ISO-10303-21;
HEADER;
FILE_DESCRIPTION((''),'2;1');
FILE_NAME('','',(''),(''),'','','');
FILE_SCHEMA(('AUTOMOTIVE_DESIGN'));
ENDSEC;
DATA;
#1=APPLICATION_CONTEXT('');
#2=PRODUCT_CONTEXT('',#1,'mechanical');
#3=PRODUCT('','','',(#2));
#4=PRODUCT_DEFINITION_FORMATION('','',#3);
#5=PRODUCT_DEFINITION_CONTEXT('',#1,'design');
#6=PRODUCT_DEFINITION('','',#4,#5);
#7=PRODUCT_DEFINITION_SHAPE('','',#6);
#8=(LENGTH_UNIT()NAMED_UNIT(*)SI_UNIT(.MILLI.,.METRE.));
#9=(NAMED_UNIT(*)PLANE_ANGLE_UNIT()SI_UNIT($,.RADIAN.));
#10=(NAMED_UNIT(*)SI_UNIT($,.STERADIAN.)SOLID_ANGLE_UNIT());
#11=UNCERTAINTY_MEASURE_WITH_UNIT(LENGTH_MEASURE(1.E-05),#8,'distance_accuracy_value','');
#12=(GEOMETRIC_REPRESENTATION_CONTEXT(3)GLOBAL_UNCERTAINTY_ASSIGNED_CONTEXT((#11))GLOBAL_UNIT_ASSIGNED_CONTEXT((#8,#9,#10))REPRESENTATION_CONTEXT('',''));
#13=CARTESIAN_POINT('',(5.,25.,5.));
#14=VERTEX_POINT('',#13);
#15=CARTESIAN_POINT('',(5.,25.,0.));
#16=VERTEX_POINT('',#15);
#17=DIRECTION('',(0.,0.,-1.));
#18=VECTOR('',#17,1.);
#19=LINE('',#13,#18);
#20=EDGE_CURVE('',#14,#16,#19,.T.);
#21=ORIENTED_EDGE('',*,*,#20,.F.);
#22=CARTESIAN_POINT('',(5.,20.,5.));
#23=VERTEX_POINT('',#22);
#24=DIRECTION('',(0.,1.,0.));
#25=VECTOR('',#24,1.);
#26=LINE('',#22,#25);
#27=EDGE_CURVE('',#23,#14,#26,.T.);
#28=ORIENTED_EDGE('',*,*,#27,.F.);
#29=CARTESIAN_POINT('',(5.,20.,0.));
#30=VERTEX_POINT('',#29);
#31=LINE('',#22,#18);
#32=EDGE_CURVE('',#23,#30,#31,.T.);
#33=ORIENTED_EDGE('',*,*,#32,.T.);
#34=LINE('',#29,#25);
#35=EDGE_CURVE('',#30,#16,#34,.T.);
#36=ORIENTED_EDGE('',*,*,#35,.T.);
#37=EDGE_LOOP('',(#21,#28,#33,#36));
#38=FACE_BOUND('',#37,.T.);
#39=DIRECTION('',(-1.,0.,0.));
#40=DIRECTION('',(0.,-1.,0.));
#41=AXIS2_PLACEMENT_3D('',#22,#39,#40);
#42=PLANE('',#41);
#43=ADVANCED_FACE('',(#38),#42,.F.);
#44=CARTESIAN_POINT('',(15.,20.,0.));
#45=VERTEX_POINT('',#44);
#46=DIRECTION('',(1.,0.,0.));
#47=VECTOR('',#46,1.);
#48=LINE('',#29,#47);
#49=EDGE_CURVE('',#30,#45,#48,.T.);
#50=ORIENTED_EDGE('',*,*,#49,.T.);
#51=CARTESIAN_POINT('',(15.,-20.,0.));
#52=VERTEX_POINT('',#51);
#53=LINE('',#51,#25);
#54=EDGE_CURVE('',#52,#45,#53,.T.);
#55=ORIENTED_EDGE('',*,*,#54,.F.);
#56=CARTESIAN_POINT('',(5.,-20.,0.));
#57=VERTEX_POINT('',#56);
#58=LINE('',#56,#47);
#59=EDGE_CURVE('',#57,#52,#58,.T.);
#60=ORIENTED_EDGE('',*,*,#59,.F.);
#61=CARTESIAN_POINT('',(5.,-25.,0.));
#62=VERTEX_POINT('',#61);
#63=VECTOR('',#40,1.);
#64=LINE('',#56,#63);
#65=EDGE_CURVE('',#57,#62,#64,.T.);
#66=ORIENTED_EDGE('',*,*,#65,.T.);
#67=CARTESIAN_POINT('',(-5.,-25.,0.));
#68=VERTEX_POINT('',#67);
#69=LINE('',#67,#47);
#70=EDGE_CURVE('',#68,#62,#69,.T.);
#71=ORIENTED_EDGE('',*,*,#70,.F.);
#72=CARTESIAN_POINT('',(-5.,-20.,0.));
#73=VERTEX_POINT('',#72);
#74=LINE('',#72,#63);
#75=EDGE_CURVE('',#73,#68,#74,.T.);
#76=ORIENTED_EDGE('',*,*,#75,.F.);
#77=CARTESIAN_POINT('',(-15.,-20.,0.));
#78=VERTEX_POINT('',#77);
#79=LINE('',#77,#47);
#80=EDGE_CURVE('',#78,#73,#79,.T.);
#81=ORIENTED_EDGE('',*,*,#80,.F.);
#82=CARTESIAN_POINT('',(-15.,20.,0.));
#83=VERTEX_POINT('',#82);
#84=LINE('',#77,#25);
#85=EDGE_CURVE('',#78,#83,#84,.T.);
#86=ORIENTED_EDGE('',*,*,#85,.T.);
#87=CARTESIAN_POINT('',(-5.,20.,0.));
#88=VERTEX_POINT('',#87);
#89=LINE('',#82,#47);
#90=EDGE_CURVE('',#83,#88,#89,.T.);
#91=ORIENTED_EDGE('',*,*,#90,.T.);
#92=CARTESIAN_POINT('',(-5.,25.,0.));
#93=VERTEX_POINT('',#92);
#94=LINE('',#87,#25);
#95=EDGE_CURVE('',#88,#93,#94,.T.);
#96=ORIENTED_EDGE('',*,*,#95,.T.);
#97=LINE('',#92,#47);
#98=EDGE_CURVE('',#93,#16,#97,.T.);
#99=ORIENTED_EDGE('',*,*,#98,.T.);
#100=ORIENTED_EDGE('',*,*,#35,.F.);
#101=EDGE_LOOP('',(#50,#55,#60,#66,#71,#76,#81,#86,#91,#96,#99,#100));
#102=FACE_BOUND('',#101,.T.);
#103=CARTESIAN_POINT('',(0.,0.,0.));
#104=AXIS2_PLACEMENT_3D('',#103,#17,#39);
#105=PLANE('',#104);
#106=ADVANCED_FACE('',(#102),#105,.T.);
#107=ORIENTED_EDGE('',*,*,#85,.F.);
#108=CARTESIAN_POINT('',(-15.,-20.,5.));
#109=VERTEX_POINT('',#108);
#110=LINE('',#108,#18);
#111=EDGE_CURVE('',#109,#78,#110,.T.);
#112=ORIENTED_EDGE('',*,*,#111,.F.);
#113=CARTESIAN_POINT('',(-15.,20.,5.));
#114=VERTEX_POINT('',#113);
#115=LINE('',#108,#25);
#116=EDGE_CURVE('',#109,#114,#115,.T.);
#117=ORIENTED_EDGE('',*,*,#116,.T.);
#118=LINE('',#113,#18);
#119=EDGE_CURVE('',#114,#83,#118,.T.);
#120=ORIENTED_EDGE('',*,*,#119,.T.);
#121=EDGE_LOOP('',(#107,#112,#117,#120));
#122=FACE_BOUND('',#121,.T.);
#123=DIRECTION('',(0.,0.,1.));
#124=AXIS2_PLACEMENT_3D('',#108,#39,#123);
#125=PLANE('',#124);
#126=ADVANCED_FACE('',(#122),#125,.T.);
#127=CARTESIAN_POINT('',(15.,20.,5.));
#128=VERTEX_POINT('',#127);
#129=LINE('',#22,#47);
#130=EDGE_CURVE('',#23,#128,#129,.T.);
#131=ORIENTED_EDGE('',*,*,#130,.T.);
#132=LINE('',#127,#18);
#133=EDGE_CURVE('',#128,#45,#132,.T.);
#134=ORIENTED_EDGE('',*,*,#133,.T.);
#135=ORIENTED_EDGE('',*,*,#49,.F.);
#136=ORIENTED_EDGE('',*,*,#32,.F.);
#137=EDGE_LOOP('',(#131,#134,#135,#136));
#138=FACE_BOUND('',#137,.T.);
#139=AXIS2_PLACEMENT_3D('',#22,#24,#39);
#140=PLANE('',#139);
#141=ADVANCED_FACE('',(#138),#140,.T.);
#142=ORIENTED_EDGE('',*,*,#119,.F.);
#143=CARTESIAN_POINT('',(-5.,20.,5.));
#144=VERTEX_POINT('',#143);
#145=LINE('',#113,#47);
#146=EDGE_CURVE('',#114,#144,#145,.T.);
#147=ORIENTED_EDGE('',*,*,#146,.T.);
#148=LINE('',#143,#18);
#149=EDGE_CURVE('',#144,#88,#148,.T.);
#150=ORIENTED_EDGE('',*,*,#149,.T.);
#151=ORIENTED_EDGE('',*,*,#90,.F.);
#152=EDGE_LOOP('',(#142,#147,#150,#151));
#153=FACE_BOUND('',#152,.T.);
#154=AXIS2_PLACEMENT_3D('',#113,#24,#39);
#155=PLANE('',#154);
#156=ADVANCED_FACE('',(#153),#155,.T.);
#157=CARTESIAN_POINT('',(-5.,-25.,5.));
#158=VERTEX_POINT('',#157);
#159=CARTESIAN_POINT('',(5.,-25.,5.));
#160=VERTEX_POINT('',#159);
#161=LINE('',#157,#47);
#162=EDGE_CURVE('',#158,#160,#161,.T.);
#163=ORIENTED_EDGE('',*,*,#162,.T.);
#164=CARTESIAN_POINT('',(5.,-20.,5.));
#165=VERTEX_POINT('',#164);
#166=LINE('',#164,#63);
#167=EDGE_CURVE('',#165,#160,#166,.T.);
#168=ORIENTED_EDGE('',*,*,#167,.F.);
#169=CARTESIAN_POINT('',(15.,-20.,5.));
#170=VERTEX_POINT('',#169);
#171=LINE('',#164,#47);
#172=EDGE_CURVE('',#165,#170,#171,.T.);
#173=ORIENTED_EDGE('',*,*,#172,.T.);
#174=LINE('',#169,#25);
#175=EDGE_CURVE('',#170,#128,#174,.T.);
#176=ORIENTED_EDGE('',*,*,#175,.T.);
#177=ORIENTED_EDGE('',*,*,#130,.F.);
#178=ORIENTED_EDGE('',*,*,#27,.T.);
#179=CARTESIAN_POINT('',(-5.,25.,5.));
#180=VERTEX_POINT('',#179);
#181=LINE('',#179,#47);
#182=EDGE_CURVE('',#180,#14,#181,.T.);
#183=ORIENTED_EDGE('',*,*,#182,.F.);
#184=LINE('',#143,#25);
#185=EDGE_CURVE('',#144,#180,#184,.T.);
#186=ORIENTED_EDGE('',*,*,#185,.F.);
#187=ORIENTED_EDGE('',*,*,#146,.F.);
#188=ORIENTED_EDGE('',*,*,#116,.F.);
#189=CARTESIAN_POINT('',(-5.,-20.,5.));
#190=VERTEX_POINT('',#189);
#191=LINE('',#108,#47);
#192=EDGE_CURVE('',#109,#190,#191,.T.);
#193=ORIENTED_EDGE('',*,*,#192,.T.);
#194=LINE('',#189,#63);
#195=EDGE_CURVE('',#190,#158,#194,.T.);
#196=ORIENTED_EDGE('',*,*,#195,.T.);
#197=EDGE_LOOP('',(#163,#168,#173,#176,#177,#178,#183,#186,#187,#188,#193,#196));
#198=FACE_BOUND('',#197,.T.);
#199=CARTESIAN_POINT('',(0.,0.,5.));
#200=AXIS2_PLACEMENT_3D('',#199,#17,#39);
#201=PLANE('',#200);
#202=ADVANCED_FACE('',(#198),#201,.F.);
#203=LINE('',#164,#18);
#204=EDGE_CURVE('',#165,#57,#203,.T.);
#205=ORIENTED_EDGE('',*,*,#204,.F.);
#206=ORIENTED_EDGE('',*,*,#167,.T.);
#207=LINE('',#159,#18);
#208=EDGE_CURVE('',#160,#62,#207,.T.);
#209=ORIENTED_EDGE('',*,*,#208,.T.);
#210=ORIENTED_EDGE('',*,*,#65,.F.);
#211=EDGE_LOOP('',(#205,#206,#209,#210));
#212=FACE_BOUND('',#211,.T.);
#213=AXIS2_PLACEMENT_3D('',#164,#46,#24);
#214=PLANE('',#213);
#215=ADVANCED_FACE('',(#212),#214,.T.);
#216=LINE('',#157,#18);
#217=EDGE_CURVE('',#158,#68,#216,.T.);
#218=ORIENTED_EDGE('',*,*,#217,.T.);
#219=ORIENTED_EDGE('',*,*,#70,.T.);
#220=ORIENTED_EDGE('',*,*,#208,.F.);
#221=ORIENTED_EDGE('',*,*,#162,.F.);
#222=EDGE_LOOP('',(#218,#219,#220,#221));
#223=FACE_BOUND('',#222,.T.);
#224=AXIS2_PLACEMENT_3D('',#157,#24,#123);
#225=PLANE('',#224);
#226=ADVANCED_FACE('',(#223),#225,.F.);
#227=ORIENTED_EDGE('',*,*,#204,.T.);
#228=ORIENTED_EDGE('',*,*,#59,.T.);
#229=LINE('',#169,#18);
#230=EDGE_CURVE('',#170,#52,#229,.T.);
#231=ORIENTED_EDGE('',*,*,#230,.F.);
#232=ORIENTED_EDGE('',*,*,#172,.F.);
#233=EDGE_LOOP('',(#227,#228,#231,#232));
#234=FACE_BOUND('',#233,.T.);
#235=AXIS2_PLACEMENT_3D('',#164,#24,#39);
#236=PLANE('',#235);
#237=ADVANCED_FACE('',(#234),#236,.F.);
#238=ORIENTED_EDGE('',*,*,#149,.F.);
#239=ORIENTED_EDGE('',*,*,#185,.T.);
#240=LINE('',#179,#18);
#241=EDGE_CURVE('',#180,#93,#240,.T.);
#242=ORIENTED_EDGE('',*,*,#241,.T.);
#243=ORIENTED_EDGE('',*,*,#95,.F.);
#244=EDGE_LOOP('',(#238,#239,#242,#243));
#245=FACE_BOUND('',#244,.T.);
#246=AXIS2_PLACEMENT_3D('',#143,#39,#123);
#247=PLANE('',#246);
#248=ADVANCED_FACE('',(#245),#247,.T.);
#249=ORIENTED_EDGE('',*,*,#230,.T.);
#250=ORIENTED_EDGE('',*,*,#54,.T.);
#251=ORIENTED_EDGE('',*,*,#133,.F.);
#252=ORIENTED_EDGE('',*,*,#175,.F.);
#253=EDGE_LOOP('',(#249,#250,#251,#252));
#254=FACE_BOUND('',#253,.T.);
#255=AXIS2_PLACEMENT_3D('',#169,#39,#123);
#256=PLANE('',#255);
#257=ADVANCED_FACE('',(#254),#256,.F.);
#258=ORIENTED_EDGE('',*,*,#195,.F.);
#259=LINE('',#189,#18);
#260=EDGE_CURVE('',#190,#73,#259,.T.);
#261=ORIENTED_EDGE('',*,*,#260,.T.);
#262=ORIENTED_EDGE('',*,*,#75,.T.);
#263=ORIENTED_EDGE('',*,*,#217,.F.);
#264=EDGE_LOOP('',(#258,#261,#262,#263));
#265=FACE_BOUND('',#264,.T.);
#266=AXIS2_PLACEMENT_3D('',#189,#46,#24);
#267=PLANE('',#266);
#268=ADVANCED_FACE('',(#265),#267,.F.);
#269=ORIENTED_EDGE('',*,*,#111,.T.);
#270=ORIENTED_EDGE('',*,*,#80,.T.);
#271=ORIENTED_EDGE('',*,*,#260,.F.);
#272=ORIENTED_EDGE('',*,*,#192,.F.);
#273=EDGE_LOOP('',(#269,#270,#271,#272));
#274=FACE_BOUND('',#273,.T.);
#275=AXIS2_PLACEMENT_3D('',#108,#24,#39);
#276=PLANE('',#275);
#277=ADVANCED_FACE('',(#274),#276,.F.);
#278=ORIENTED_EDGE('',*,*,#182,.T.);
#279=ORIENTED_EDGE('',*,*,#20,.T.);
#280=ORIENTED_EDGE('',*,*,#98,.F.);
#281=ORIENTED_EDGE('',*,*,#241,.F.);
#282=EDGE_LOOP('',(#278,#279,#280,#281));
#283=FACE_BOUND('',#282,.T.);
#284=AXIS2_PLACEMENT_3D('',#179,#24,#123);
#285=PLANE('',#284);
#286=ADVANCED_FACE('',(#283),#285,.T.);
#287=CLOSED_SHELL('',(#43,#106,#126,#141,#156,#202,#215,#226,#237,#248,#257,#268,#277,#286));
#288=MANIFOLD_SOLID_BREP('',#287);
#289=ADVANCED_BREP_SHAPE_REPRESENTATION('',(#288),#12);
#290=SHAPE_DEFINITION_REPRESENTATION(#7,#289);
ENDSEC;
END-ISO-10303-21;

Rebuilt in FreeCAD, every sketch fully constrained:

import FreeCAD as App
import Part
import Sketcher
Q = App.Units.Quantity


def add_polygon(sketch, points):
    """Adds a closed chain of lines whose ends are joined by coincident constraints."""
    first, n = sketch.GeometryCount, len(points)
    for a, b in zip(points, points[1:] + points[:1]):
        sketch.addGeometry(Part.LineSegment(App.Vector(*a, 0), App.Vector(*b, 0)), False)
    for i in range(n):
        sketch.addConstraint(Sketcher.Constraint("Coincident", first + i, 2, first + (i + 1) % n, 1))

doc = App.newDocument("Part")
params = doc.addObject("Spreadsheet::Sheet", "Params")
for row, (alias, value) in enumerate([
    ("sketch1_width", "10 mm"),
    ("sketch1_height", "5 mm"),
    ("sketch1_height2", "40 mm"),
    ("pad1_length", "5 mm"),
], start=1):
    params.set(f"A{row}", alias)
    params.set(f"B{row}", "=" + value)
    params.setAlias(f"B{row}", alias)

body = doc.addObject("PartDesign::Body", "Body")

# Sketch on XY plane
sketch1 = doc.addObject("Sketcher::SketchObject", "Sketch")
body.addObject(sketch1)
sketch1.AttachmentSupport = (doc.XY_Plane, [""])
sketch1.MapMode = "FlatFace"
add_polygon(sketch1, [(15, 20), (5, 20), (5, 25), (-5, 25), (-5, 20), (-15, 20), (-15, -20), (-5, -20), (-5, -25), (5, -25), (5, -20), (15, -20)])  # lines 0-11
sketch1.addConstraint([
    Sketcher.Constraint("Horizontal", 0),
    Sketcher.Constraint("Vertical", 1),
    Sketcher.Constraint("Horizontal", 2),
    Sketcher.Constraint("Vertical", 3),
    Sketcher.Constraint("Horizontal", 4),
    Sketcher.Constraint("Vertical", 5),
    Sketcher.Constraint("Horizontal", 6),
    Sketcher.Constraint("Vertical", 7),
    Sketcher.Constraint("Horizontal", 8),
    Sketcher.Constraint("Vertical", 9),
    Sketcher.Constraint("Horizontal", 10),
    Sketcher.Constraint("Vertical", 11),
    Sketcher.Constraint("Symmetric", 0, 2, 6, 2, -1, 1),
    Sketcher.Constraint("Symmetric", 2, 2, 8, 2, -1, 1),
    Sketcher.Constraint("Symmetric", 4, 2, 10, 2, -1, 1),
    Sketcher.Constraint("Symmetric", 0, 2, 3, 2, -2),
    Sketcher.Constraint("Equal", 0, 2),
    Sketcher.Constraint("DistanceX", 0, 2, 0, 1, Q("10 mm")),
    Sketcher.Constraint("DistanceY", 1, 1, 1, 2, Q("5 mm")),
    Sketcher.Constraint("DistanceY", 5, 2, 5, 1, Q("40 mm")),
])
sketch1.setExpression("Constraints[29]", "Params.sketch1_width")
sketch1.setExpression("Constraints[30]", "Params.sketch1_height")
sketch1.setExpression("Constraints[31]", "Params.sketch1_height2")
pad1 = doc.addObject("PartDesign::Pad", "Pad")
body.addObject(pad1)
pad1.Profile = sketch1
pad1.setExpression("Length", "Params.pad1_length")

doc.recompute()
